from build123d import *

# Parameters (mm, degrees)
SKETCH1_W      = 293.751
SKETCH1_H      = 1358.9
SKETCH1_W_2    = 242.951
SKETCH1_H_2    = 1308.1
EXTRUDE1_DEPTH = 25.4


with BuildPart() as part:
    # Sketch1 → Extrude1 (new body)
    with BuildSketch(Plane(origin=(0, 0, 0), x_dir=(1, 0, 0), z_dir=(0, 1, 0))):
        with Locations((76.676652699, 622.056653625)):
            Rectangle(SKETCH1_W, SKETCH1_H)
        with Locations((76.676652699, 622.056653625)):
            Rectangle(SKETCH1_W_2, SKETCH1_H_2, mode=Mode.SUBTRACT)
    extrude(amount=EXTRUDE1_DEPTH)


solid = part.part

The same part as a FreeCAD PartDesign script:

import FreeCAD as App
import Part
import Sketcher

V = App.Vector
Q = App.Units.Quantity


def add_polygon(sketch, points):
    """Adds a closed chain of lines whose ends are joined by coincident constraints."""
    first, n = sketch.GeometryCount, len(points)
    for a, b in zip(points, points[1:] + points[:1]):
        sketch.addGeometry(Part.LineSegment(App.Vector(*a, 0), App.Vector(*b, 0)), False)
    for i in range(n):
        sketch.addConstraint(Sketcher.Constraint("Coincident", first + i, 2, first + (i + 1) % n, 1))

doc = App.newDocument("Part")
body = doc.addObject("PartDesign::Body", "Body")

# Sketch on XZ plane
sketch1 = body.newObject("Sketcher::SketchObject", "Sketch")
sketch1.AttachmentSupport = (doc.getObject("XZ_Plane"), [""])
sketch1.MapMode = "FlatFace"
add_polygon(sketch1, [(-70, -1302), (-70, 57), (224, 57), (224, -1302)])  # lines 0-3
add_polygon(sketch1, [(198, 32), (-45, 32), (-45, -1276), (198, -1276)])  # lines 4-7
sketch1.addConstraint(Sketcher.Constraint("Vertical", 0))
sketch1.addConstraint(Sketcher.Constraint("Horizontal", 1))
sketch1.addConstraint(Sketcher.Constraint("Vertical", 2))
sketch1.addConstraint(Sketcher.Constraint("Horizontal", 3))
sketch1.addConstraint(Sketcher.Constraint("Horizontal", 4))
sketch1.addConstraint(Sketcher.Constraint("Vertical", 5))
sketch1.addConstraint(Sketcher.Constraint("Horizontal", 6))
sketch1.addConstraint(Sketcher.Constraint("Vertical", 7))
sketch1.addConstraint(Sketcher.Constraint("DistanceY", 0, 1, 0, 2, Q("53.5 in")))
sketch1.addConstraint(Sketcher.Constraint("DistanceY", 5, 2, 5, 1, Q("51.5 in")))
sketch1.addConstraint(Sketcher.Constraint("DistanceX", 0, 2, 4, 2, Q("1 in")))
sketch1.addConstraint(Sketcher.Constraint("DistanceY", 4, 2, 0, 2, Q("1 in")))
sketch1.addConstraint(Sketcher.Constraint("DistanceX", 6, 2, 2, 2, Q("1 in")))
sketch1.addConstraint(Sketcher.Constraint("DistanceX", 1, 1, 1, 2, Q("11.565 in")))
sketch1.addConstraint(Sketcher.Constraint("DistanceX", 0, 2, -1, 1, 70.198847))
sketch1.addConstraint(Sketcher.Constraint("DistanceY", -1, 1, 0, 2, 57.393346))
pad1 = body.newObject("PartDesign::Pad", "Pad")
pad1.Profile = sketch1
pad1.Length = Q("1 in")
pad1.Reversed = True

doc.recompute()
